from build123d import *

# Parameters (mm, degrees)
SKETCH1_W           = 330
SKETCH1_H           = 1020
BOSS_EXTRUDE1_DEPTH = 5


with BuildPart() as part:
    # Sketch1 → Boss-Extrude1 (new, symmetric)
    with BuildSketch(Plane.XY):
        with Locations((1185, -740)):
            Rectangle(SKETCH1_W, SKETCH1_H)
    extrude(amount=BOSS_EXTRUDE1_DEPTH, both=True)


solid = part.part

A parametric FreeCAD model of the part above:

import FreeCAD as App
import Part
import Sketcher
from FreeCAD import Vector


def add_polygon(sketch, points):
    """Adds a closed chain of lines whose ends are joined by coincident constraints."""
    first, n = sketch.GeometryCount, len(points)
    for a, b in zip(points, points[1:] + points[:1]):
        sketch.addGeometry(Part.LineSegment(App.Vector(*a, 0), App.Vector(*b, 0)), False)
    for i in range(n):
        sketch.addConstraint(Sketcher.Constraint("Coincident", first + i, 2, first + (i + 1) % n, 1))

doc = App.newDocument("Part")
body = doc.addObject("PartDesign::Body", "Body")

# Sketch on XY plane
sketch1 = body.newObject("Sketcher::SketchObject", "Sketch")
sketch1.AttachmentSupport = (doc.getObject("XY_Plane"), [""])
sketch1.MapMode = "FlatFace"
add_polygon(sketch1, [(1020, -230), (1020, -1250), (1350, -1250), (1350, -230)])  # lines 0-3
sketch1.addConstraint(Sketcher.Constraint("Vertical", 0))
sketch1.addConstraint(Sketcher.Constraint("Horizontal", 1))
sketch1.addConstraint(Sketcher.Constraint("Vertical", 2))
sketch1.addConstraint(Sketcher.Constraint("Horizontal", 3))
sketch1.addConstraint(Sketcher.Constraint("DistanceX", 1, 1, 1, 2, 330.0))
sketch1.addConstraint(Sketcher.Constraint("DistanceY", 0, 2, 0, 1, 1020.0))
sketch1.addConstraint(Sketcher.Constraint("DistanceX", -1, 1, 0, 2, 1020.0))
sketch1.addConstraint(Sketcher.Constraint("DistanceY", 0, 2, -1, 1, 1250.0))
pad1 = body.newObject("PartDesign::Pad", "Pad")
pad1.Profile = sketch1
pad1.Length = 10
pad1.Midplane = True

doc.recompute()
